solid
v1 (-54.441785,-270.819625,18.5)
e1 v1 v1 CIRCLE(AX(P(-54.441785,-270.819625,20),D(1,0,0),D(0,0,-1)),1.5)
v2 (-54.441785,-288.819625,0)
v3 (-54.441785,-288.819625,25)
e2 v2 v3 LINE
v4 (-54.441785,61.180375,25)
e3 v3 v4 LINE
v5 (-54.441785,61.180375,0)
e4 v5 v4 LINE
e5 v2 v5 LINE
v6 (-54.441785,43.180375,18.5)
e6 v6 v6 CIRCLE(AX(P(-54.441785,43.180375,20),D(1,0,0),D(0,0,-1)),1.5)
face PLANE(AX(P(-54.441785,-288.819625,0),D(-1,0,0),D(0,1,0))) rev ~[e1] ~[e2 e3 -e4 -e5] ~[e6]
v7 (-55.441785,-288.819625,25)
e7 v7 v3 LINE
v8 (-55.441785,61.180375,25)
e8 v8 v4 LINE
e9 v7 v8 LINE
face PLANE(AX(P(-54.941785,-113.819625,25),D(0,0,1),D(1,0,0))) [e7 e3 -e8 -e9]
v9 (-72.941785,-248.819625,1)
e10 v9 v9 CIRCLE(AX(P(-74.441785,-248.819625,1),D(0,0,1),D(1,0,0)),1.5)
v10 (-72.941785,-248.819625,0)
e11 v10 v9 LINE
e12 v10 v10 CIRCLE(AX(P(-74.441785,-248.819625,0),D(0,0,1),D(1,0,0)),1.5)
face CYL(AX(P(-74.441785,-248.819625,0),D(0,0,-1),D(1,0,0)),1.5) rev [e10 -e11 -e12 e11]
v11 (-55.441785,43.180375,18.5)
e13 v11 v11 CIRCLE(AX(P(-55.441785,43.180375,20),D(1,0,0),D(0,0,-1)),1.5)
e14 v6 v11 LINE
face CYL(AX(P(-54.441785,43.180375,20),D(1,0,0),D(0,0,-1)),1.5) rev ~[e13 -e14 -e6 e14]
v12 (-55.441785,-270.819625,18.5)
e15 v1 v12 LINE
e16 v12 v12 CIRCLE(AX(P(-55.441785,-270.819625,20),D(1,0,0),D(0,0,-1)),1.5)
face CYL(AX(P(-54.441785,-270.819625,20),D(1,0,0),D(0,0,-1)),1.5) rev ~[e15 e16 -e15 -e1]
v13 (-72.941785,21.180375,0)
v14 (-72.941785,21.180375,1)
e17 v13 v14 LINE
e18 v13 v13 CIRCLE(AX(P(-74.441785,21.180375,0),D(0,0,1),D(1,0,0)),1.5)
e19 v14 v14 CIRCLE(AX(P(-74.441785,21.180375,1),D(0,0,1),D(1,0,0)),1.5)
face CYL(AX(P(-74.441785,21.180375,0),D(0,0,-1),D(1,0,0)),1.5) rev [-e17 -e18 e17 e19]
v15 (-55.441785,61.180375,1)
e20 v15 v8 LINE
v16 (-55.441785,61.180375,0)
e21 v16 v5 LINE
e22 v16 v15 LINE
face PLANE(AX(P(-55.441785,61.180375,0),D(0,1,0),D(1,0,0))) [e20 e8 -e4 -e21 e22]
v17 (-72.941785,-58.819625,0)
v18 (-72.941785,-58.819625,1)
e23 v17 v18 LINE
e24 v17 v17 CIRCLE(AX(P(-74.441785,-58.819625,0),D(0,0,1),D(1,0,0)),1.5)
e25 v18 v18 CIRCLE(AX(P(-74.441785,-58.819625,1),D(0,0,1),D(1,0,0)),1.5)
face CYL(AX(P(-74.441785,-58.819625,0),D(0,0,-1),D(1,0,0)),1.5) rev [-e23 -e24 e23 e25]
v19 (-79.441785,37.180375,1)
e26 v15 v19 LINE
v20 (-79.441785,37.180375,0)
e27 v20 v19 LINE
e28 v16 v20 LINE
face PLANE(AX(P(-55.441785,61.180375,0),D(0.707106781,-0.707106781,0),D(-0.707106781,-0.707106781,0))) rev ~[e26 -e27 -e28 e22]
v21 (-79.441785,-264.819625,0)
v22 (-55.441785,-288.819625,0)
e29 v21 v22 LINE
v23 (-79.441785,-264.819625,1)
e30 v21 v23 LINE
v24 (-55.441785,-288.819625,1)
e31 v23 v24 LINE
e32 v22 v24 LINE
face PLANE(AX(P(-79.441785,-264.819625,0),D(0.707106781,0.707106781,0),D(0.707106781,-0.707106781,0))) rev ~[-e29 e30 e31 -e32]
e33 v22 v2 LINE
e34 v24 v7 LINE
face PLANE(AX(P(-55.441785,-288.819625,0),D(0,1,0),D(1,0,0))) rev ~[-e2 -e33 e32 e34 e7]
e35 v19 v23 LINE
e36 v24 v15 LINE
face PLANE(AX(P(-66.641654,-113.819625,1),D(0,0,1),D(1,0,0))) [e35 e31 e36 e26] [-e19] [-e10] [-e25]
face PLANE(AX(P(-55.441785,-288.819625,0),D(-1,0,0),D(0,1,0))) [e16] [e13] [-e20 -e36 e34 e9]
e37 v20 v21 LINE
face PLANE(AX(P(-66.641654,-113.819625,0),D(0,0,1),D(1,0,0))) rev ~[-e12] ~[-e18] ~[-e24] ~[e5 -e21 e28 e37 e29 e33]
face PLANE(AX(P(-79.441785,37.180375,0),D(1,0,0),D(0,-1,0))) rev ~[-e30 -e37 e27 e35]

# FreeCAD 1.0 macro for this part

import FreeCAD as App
import Part
import Sketcher
Q = App.Units.Quantity

doc = App.newDocument("Part")
body = doc.addObject("PartDesign::Body", "Body")

# Sketch on XY plane
sketch1 = body.newObject("Sketcher::SketchObject", "Sketch")
sketch1.AttachmentSupport = (doc.getObject("XY_Plane"), [""])
sketch1.MapMode = "FlatFace"
sketch1.addGeometry([
    Part.LineSegment(App.Vector(-55.441785, 61.180375, 0), App.Vector(-55.441785, -288.819625, 0)),
    Part.LineSegment(App.Vector(-55.441785, -288.819625, 0), App.Vector(-54.441785, -288.819625, 0)),
    Part.LineSegment(App.Vector(-54.441785, -288.819625, 0), App.Vector(-54.441785, 61.180375, 0)),
    Part.LineSegment(App.Vector(-54.441785, 61.180375, 0), App.Vector(-55.441785, 61.180375, 0)),
], False)
sketch1.addConstraint([
    Sketcher.Constraint("Coincident", 0, 2, 1, 1),
    Sketcher.Constraint("Coincident", 1, 2, 2, 1),
    Sketcher.Constraint("Coincident", 2, 2, 3, 1),
    Sketcher.Constraint("Coincident", 3, 2, 0, 1),
    Sketcher.Constraint("Vertical", 0),
    Sketcher.Constraint("Horizontal", 1),
    Sketcher.Constraint("Vertical", 2),
    Sketcher.Constraint("Horizontal", 3),
    Sketcher.Constraint("DistanceX", 1, 1, 1, 2, Q("1 mm")),
    Sketcher.Constraint("DistanceY", 0, 2, 0, 1, Q("350 mm")),
    Sketcher.Constraint("DistanceX", 0, 2, -1, 1, Q("55.441785 mm")),
    Sketcher.Constraint("DistanceY", 0, 2, -1, 1, Q("288.819625 mm")),
])
pad1 = body.newObject("PartDesign::Pad", "Pad")
pad1.Profile = sketch1
pad1.Length = 25

# Sketch on YZ plane
sketch2 = body.newObject("Sketcher::SketchObject", "Sketch001")
sketch2.AttachmentSupport = (doc.getObject("YZ_Plane"), [""])
sketch2.MapMode = "FlatFace"
sketch2.AttachmentOffset = App.Placement(App.Vector(0, 0, -54.441785), App.Rotation())
sketch2.addGeometry([
    Part.Circle(App.Vector(43.180375, 20, 0), App.Vector(0, 0, 1), 1.5),
    Part.Circle(App.Vector(-270.819625, 20, 0), App.Vector(0, 0, 1), 1.5),
], False)
sketch2.addConstraint([
    Sketcher.Constraint("Equal", 0, 1),
    Sketcher.Constraint("Horizontal", 0, 3, 1, 3),
    Sketcher.Constraint("Diameter", 0, Q("3 mm")),
    Sketcher.Constraint("DistanceY", -1, 1, 0, 3, Q("20 mm")),
    Sketcher.Constraint("DistanceX", 1, 3, 0, 3, Q("314 mm")),
    Sketcher.Constraint("DistanceX", -1, 1, 0, 3, Q("43.180375 mm")),
])
pocket1 = body.newObject("PartDesign::Pocket", "Pocket")
pocket1.Profile = sketch2
pocket1.Length = 1

# Sketch on XY plane
sketch3 = body.newObject("Sketcher::SketchObject", "Sketch002")
sketch3.AttachmentSupport = (doc.getObject("XY_Plane"), [""])
sketch3.MapMode = "FlatFace"
sketch3.addGeometry([
    Part.LineSegment(App.Vector(-55.441785, 61.180375, 0), App.Vector(-79.441785, 37.180375, 0)),  # 0
    Part.LineSegment(App.Vector(-79.441785, 37.180375, 0), App.Vector(-79.441785, -264.819625, 0)),  # 1
    Part.LineSegment(App.Vector(-79.441785, -264.819625, 0), App.Vector(-55.441785, -288.819625, 0)),  # 2
    Part.LineSegment(App.Vector(-55.441785, -288.819625, 0), App.Vector(-55.441785, 61.180375, 0)),  # 3
    Part.Circle(App.Vector(-74.441785, -248.819625, 0), App.Vector(0, 0, 1), 1.5),  # 4
    Part.Circle(App.Vector(-74.441785, -58.819625, 0), App.Vector(0, 0, 1), 1.5),  # 5
    Part.Circle(App.Vector(-74.441785, 21.180375, 0), App.Vector(0, 0, 1), 1.5),  # 6
], False)
sketch3.addConstraint([
    Sketcher.Constraint("Coincident", 0, 2, 1, 1),
    Sketcher.Constraint("Coincident", 1, 2, 2, 1),
    Sketcher.Constraint("Coincident", 2, 2, 3, 1),
    Sketcher.Constraint("Coincident", 3, 2, 0, 1),
    Sketcher.Constraint("Vertical", 1),
    Sketcher.Constraint("Vertical", 3),
    Sketcher.Constraint("Equal", 4, 5),
    Sketcher.Constraint("Equal", 5, 6),
    Sketcher.Constraint("Perpendicular", 0, 2),
    Sketcher.Constraint("Vertical", 4, 3, 5, 3),
    Sketcher.Constraint("Vertical", 5, 3, 6, 3),
    Sketcher.Constraint("Equal", 0, 2),
    Sketcher.Constraint("Diameter", 4, Q("3 mm")),
    Sketcher.Constraint("DistanceY", 1, 2, 1, 1, Q("302 mm")),
    Sketcher.Constraint("DistanceY", 3, 1, 3, 2, Q("350 mm")),
    Sketcher.Constraint("DistanceY", 4, 3, 5, 3, Q("190 mm")),
    Sketcher.Constraint("DistanceY", 5, 3, 6, 3, Q("80 mm")),
    Sketcher.Constraint("DistanceX", 0, 2, 6, 3, Q("5 mm")),
    Sketcher.Constraint("DistanceY", 6, 3, 0, 2, Q("16 mm")),
    Sketcher.Constraint("DistanceX", 4, 3, -1, 1, Q("74.441785 mm")),
    Sketcher.Constraint("DistanceY", 4, 3, -1, 1, Q("248.819625 mm")),
])
pad2 = body.newObject("PartDesign::Pad", "Pad001")
pad2.Profile = sketch3
pad2.Length = 1

doc.recompute()
